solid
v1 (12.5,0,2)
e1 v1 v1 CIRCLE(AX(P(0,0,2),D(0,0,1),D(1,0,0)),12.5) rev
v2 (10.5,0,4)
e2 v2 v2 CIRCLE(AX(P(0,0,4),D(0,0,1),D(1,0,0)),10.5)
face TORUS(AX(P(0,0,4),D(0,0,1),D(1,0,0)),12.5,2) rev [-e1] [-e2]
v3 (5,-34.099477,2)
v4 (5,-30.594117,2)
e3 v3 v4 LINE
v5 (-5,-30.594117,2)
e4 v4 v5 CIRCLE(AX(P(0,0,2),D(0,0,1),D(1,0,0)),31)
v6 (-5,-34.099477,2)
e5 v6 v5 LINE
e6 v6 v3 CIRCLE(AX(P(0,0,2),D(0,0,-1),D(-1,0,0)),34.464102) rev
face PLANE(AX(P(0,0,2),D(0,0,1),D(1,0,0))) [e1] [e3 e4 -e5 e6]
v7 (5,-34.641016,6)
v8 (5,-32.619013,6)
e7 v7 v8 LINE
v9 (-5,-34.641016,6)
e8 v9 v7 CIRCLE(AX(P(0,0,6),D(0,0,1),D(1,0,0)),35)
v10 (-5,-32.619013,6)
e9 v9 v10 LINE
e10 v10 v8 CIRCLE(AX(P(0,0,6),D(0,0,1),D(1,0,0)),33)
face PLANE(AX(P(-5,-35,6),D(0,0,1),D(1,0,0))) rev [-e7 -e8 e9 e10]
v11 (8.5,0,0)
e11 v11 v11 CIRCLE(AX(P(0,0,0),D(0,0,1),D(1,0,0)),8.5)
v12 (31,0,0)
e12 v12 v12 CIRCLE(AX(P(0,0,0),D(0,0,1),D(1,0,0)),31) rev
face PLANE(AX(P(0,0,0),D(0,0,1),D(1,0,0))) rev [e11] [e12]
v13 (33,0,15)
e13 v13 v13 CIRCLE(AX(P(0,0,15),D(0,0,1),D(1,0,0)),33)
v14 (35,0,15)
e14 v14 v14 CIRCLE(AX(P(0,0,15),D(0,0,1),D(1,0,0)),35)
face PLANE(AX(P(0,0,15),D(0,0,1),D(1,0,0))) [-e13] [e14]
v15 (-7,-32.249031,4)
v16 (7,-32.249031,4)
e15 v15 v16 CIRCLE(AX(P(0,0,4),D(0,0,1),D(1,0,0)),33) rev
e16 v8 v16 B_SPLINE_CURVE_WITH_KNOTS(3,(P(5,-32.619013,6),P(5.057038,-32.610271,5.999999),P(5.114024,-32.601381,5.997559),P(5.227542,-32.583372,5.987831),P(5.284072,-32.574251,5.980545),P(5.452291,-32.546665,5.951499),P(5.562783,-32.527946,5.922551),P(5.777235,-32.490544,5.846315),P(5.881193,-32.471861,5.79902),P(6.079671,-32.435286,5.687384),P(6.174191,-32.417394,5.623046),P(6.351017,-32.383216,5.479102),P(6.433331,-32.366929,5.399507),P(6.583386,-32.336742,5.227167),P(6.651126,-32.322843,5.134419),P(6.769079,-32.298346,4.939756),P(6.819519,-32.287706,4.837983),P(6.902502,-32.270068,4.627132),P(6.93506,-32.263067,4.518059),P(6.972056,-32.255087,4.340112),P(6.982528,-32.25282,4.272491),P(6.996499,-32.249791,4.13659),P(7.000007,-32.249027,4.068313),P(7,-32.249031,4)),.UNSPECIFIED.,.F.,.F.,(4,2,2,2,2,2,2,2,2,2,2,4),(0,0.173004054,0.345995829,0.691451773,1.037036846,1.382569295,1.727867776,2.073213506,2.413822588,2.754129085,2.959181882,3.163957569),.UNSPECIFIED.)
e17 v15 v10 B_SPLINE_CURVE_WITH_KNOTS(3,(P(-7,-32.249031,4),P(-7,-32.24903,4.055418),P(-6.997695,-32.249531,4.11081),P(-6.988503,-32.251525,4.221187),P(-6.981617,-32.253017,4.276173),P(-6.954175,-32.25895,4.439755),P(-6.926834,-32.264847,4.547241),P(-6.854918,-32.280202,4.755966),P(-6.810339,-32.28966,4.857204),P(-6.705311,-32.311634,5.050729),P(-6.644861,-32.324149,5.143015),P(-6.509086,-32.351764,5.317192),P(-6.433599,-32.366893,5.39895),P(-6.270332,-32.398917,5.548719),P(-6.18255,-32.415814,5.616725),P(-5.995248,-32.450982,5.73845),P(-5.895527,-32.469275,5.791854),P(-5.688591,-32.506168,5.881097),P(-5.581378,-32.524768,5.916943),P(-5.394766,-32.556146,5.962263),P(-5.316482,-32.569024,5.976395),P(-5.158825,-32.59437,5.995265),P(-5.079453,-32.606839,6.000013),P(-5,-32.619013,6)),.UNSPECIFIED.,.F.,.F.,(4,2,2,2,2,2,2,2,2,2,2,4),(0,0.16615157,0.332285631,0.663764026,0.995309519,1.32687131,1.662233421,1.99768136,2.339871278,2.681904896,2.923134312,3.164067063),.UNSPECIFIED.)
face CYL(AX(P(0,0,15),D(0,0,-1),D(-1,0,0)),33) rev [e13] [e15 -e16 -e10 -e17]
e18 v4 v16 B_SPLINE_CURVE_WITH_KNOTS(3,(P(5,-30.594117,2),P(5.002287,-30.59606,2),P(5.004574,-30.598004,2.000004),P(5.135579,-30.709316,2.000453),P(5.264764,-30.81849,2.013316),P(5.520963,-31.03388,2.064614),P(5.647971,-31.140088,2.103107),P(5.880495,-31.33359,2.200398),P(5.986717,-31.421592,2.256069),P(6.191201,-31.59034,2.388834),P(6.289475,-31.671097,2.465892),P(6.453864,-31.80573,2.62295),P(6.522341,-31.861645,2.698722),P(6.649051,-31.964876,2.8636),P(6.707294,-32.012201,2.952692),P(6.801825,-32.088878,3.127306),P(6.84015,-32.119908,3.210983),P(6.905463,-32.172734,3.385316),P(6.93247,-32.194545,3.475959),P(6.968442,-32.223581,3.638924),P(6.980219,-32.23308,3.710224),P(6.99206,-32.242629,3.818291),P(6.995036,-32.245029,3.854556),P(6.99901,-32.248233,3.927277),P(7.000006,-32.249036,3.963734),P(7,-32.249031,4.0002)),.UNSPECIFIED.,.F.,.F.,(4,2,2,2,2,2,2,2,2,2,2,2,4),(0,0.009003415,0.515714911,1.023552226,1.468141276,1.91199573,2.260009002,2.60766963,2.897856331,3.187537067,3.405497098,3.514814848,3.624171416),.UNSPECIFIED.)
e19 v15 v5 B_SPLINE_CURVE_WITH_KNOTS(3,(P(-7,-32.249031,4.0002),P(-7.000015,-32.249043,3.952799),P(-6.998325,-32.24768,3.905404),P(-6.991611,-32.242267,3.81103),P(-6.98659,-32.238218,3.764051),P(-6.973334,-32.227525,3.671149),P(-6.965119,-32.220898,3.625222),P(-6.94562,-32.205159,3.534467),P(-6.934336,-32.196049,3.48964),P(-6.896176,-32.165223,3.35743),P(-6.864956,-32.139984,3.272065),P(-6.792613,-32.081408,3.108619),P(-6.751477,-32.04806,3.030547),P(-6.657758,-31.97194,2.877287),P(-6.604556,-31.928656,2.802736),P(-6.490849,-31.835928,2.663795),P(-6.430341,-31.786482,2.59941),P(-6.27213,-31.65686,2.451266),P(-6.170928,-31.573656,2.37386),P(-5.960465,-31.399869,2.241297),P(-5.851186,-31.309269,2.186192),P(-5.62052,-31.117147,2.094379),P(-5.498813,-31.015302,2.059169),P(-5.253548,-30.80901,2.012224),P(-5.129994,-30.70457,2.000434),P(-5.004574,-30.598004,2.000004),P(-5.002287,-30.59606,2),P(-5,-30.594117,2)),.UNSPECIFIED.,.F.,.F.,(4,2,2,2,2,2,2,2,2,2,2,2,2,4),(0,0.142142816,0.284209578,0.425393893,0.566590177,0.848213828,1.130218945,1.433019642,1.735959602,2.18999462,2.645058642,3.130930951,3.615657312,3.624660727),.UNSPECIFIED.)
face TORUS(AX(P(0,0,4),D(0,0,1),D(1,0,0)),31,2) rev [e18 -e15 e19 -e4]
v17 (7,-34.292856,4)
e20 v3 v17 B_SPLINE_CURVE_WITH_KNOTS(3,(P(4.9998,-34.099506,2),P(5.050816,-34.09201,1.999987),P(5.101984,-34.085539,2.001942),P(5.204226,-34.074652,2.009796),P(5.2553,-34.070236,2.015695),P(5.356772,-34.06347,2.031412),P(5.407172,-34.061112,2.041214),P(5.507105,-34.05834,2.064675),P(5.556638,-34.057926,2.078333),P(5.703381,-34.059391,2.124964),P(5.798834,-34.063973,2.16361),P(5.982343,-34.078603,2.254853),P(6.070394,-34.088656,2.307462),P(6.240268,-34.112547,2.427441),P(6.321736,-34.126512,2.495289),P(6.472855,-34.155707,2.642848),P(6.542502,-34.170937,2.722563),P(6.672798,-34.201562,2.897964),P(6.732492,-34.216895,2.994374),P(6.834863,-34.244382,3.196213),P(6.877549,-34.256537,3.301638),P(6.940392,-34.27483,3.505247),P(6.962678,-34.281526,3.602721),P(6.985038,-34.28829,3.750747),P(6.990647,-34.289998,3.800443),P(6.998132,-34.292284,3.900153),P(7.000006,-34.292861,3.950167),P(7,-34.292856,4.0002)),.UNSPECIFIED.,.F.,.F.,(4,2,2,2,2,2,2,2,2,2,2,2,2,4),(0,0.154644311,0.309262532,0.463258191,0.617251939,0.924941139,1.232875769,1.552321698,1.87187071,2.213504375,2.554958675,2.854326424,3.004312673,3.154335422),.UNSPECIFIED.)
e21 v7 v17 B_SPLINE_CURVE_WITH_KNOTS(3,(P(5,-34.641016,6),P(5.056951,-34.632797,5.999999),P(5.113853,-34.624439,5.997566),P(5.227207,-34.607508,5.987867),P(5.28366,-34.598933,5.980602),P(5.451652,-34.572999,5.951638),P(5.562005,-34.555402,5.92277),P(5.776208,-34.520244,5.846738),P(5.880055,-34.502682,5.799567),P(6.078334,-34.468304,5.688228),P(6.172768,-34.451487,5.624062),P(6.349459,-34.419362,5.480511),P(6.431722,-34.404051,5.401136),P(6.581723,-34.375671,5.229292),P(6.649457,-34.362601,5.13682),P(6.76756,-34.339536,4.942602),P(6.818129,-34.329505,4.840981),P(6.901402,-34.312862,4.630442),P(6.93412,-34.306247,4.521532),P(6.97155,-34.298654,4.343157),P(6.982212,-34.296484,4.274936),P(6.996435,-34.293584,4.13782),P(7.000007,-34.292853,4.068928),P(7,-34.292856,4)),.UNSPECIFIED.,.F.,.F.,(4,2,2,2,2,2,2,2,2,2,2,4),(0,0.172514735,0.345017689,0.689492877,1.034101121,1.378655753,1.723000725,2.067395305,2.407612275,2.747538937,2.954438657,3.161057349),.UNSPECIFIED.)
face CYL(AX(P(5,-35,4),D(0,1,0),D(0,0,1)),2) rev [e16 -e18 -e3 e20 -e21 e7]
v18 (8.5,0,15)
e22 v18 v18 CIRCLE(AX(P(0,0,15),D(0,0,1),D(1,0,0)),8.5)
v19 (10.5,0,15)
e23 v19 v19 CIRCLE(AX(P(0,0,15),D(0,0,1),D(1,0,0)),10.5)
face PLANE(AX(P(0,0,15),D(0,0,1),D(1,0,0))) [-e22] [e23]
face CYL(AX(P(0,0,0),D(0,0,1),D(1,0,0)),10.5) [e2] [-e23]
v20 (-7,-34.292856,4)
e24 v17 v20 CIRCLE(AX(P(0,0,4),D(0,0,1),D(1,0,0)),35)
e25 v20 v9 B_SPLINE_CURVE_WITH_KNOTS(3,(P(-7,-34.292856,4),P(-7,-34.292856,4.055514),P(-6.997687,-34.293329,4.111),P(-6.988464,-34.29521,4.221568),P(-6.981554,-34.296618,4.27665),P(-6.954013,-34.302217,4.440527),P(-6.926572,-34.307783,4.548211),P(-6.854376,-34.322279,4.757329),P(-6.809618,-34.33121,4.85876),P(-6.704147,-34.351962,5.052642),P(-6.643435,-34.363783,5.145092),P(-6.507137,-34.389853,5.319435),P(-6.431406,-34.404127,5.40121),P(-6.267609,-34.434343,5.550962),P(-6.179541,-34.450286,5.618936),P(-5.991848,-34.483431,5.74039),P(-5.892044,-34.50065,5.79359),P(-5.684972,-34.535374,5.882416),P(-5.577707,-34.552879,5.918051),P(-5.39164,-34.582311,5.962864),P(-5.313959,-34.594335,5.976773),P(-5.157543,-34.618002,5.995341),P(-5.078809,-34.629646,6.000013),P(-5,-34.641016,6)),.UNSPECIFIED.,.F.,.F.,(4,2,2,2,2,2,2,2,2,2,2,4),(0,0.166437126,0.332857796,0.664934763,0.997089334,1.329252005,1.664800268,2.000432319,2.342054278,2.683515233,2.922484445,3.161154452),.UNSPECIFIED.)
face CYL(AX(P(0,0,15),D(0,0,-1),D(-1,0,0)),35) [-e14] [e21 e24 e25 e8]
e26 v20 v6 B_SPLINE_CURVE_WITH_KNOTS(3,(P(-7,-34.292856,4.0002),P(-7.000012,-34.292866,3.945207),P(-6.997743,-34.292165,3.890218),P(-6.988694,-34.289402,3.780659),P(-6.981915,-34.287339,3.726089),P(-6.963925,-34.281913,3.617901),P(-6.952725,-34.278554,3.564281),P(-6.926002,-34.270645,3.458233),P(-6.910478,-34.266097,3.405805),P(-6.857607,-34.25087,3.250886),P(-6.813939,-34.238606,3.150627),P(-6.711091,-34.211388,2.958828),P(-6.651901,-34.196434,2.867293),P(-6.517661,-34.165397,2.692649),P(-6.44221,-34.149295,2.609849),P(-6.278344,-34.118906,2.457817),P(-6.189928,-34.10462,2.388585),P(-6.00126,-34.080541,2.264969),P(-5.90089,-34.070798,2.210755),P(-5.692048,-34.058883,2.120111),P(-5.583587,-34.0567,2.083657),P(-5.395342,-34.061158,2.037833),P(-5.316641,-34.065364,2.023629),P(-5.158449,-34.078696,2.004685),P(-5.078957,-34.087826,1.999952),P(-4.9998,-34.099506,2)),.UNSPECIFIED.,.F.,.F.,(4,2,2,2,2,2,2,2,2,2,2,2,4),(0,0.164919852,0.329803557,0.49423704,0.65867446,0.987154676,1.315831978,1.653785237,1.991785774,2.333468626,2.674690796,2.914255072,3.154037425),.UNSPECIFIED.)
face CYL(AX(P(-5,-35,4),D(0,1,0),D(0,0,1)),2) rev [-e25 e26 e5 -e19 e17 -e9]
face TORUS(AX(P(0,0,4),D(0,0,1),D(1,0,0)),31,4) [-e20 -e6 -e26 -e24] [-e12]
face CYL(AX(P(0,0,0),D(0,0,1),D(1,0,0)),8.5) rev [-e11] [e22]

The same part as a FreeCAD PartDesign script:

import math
import FreeCAD as App
import Part
import Sketcher

V = App.Vector


def edges_at(feature, points):
    """Names of the edges that pass closest to the given points."""
    edges = feature.Shape.Edges
    near = lambda p: min(range(len(edges)), key=lambda i: edges[i].distToShape(Part.Vertex(*p))[0])
    return sorted({f"Edge{near(p) + 1}" for p in points})


def faces_at(feature, points):
    """Names of the faces that lie closest to the given points."""
    faces = feature.Shape.Faces
    near = lambda p: min(range(len(faces)), key=lambda i: faces[i].distToShape(Part.Vertex(*p))[0])
    return sorted({f"Face{near(p) + 1}" for p in points})

doc = App.newDocument("Part")
body = doc.addObject("PartDesign::Body", "Body")

# Sketch on XY plane
sketch1 = body.newObject("Sketcher::SketchObject", "Sketch")
sketch1.AttachmentSupport = (doc.getObject("XY_Plane"), [""])
sketch1.MapMode = "FlatFace"
sketch1.addGeometry(Part.Circle(V(0, 0, 0), V(0, 0, 1), 35), False)
sketch1.addConstraint(Sketcher.Constraint("Coincident", 0, 3, -1, 1))
sketch1.addConstraint(Sketcher.Constraint("Diameter", 0, 70.0))
pad1 = body.newObject("PartDesign::Pad", "Pad")
pad1.Profile = sketch1
pad1.Length = 15

# Sketch on XY plane
sketch2 = body.newObject("Sketcher::SketchObject", "Sketch001")
sketch2.AttachmentSupport = (doc.getObject("XY_Plane"), [""])
sketch2.MapMode = "FlatFace"
sketch2.AttachmentOffset = App.Placement(V(0, 0, 15), App.Rotation())
sketch2.addGeometry(Part.Circle(V(0, 0, 0), V(0, 0, 1), 8), False)
sketch2.addConstraint(Sketcher.Constraint("Coincident", 0, 3, -1, 1))
sketch2.addConstraint(Sketcher.Constraint("Diameter", 0, 17.0))
pocket1 = body.newObject("PartDesign::Pocket", "Pocket")
pocket1.Profile = sketch2
pocket1.Type = "ThroughAll"
doc.recompute()

thickness = body.newObject("PartDesign::Thickness", "Thickness")
thickness.Base = (pocket1, faces_at(pocket1, [(-14, -14, 15)]))
thickness.Value = 2
thickness.Reversed = True
thickness.Join = "Intersection"
doc.recompute()

fillet = body.newObject("PartDesign::Fillet", "Fillet")
fillet.Base = (thickness, edges_at(thickness, [(-33, 0, 2), (-10.5, 0, 2)]))
fillet.Radius = 2
doc.recompute()

fillet2 = body.newObject("PartDesign::Fillet", "Fillet001")
fillet2.Base = (fillet, edges_at(fillet, [(-35, 0, 0)]))
fillet2.Radius = 4

# Sketch on XZ plane
sketch3 = body.newObject("Sketcher::SketchObject", "Sketch002")
sketch3.AttachmentSupport = (doc.getObject("XZ_Plane"), [""])
sketch3.MapMode = "FlatFace"
sketch3.AttachmentOffset = App.Placement(V(0, 0, 25), App.Rotation())
sketch3.addGeometry(Part.LineSegment(V(5, 2, 0), V(-5, 2, 0)), False)
sketch3.addGeometry(Part.ArcOfCircle(Part.Circle(V(-5, 4, 0), V(0, 0, 1), 2), math.radians(90), math.radians(270)), False)
sketch3.addGeometry(Part.LineSegment(V(-5, 6, 0), V(5, 6, 0)), False)
sketch3.addGeometry(Part.ArcOfCircle(Part.Circle(V(5, 4, 0), V(0, 0, 1), 2), math.radians(-90), math.radians(90)), False)
sketch3.addConstraint(Sketcher.Constraint("Tangent", 0, 2, 1, 2))
sketch3.addConstraint(Sketcher.Constraint("Tangent", 1, 1, 2, 1))
sketch3.addConstraint(Sketcher.Constraint("Tangent", 2, 2, 3, 2))
sketch3.addConstraint(Sketcher.Constraint("Tangent", 3, 1, 0, 1))
sketch3.addConstraint(Sketcher.Constraint("Horizontal", 0))
sketch3.addConstraint(Sketcher.Constraint("Horizontal", 2))
sketch3.addConstraint(Sketcher.Constraint("Radius", 1, 2.0))
sketch3.addConstraint(Sketcher.Constraint("DistanceX", 0, 2, 0, 1, 10.0))
sketch3.addConstraint(Sketcher.Constraint("DistanceX", 1, 3, -1, 1, 5.0))
sketch3.addConstraint(Sketcher.Constraint("DistanceY", -1, 1, 1, 3, 4.0))
pocket2 = body.newObject("PartDesign::Pocket", "Pocket001")
pocket2.Profile = sketch3
pocket2.Type = "ThroughAll"
pocket2.Reversed = True

doc.recompute()
